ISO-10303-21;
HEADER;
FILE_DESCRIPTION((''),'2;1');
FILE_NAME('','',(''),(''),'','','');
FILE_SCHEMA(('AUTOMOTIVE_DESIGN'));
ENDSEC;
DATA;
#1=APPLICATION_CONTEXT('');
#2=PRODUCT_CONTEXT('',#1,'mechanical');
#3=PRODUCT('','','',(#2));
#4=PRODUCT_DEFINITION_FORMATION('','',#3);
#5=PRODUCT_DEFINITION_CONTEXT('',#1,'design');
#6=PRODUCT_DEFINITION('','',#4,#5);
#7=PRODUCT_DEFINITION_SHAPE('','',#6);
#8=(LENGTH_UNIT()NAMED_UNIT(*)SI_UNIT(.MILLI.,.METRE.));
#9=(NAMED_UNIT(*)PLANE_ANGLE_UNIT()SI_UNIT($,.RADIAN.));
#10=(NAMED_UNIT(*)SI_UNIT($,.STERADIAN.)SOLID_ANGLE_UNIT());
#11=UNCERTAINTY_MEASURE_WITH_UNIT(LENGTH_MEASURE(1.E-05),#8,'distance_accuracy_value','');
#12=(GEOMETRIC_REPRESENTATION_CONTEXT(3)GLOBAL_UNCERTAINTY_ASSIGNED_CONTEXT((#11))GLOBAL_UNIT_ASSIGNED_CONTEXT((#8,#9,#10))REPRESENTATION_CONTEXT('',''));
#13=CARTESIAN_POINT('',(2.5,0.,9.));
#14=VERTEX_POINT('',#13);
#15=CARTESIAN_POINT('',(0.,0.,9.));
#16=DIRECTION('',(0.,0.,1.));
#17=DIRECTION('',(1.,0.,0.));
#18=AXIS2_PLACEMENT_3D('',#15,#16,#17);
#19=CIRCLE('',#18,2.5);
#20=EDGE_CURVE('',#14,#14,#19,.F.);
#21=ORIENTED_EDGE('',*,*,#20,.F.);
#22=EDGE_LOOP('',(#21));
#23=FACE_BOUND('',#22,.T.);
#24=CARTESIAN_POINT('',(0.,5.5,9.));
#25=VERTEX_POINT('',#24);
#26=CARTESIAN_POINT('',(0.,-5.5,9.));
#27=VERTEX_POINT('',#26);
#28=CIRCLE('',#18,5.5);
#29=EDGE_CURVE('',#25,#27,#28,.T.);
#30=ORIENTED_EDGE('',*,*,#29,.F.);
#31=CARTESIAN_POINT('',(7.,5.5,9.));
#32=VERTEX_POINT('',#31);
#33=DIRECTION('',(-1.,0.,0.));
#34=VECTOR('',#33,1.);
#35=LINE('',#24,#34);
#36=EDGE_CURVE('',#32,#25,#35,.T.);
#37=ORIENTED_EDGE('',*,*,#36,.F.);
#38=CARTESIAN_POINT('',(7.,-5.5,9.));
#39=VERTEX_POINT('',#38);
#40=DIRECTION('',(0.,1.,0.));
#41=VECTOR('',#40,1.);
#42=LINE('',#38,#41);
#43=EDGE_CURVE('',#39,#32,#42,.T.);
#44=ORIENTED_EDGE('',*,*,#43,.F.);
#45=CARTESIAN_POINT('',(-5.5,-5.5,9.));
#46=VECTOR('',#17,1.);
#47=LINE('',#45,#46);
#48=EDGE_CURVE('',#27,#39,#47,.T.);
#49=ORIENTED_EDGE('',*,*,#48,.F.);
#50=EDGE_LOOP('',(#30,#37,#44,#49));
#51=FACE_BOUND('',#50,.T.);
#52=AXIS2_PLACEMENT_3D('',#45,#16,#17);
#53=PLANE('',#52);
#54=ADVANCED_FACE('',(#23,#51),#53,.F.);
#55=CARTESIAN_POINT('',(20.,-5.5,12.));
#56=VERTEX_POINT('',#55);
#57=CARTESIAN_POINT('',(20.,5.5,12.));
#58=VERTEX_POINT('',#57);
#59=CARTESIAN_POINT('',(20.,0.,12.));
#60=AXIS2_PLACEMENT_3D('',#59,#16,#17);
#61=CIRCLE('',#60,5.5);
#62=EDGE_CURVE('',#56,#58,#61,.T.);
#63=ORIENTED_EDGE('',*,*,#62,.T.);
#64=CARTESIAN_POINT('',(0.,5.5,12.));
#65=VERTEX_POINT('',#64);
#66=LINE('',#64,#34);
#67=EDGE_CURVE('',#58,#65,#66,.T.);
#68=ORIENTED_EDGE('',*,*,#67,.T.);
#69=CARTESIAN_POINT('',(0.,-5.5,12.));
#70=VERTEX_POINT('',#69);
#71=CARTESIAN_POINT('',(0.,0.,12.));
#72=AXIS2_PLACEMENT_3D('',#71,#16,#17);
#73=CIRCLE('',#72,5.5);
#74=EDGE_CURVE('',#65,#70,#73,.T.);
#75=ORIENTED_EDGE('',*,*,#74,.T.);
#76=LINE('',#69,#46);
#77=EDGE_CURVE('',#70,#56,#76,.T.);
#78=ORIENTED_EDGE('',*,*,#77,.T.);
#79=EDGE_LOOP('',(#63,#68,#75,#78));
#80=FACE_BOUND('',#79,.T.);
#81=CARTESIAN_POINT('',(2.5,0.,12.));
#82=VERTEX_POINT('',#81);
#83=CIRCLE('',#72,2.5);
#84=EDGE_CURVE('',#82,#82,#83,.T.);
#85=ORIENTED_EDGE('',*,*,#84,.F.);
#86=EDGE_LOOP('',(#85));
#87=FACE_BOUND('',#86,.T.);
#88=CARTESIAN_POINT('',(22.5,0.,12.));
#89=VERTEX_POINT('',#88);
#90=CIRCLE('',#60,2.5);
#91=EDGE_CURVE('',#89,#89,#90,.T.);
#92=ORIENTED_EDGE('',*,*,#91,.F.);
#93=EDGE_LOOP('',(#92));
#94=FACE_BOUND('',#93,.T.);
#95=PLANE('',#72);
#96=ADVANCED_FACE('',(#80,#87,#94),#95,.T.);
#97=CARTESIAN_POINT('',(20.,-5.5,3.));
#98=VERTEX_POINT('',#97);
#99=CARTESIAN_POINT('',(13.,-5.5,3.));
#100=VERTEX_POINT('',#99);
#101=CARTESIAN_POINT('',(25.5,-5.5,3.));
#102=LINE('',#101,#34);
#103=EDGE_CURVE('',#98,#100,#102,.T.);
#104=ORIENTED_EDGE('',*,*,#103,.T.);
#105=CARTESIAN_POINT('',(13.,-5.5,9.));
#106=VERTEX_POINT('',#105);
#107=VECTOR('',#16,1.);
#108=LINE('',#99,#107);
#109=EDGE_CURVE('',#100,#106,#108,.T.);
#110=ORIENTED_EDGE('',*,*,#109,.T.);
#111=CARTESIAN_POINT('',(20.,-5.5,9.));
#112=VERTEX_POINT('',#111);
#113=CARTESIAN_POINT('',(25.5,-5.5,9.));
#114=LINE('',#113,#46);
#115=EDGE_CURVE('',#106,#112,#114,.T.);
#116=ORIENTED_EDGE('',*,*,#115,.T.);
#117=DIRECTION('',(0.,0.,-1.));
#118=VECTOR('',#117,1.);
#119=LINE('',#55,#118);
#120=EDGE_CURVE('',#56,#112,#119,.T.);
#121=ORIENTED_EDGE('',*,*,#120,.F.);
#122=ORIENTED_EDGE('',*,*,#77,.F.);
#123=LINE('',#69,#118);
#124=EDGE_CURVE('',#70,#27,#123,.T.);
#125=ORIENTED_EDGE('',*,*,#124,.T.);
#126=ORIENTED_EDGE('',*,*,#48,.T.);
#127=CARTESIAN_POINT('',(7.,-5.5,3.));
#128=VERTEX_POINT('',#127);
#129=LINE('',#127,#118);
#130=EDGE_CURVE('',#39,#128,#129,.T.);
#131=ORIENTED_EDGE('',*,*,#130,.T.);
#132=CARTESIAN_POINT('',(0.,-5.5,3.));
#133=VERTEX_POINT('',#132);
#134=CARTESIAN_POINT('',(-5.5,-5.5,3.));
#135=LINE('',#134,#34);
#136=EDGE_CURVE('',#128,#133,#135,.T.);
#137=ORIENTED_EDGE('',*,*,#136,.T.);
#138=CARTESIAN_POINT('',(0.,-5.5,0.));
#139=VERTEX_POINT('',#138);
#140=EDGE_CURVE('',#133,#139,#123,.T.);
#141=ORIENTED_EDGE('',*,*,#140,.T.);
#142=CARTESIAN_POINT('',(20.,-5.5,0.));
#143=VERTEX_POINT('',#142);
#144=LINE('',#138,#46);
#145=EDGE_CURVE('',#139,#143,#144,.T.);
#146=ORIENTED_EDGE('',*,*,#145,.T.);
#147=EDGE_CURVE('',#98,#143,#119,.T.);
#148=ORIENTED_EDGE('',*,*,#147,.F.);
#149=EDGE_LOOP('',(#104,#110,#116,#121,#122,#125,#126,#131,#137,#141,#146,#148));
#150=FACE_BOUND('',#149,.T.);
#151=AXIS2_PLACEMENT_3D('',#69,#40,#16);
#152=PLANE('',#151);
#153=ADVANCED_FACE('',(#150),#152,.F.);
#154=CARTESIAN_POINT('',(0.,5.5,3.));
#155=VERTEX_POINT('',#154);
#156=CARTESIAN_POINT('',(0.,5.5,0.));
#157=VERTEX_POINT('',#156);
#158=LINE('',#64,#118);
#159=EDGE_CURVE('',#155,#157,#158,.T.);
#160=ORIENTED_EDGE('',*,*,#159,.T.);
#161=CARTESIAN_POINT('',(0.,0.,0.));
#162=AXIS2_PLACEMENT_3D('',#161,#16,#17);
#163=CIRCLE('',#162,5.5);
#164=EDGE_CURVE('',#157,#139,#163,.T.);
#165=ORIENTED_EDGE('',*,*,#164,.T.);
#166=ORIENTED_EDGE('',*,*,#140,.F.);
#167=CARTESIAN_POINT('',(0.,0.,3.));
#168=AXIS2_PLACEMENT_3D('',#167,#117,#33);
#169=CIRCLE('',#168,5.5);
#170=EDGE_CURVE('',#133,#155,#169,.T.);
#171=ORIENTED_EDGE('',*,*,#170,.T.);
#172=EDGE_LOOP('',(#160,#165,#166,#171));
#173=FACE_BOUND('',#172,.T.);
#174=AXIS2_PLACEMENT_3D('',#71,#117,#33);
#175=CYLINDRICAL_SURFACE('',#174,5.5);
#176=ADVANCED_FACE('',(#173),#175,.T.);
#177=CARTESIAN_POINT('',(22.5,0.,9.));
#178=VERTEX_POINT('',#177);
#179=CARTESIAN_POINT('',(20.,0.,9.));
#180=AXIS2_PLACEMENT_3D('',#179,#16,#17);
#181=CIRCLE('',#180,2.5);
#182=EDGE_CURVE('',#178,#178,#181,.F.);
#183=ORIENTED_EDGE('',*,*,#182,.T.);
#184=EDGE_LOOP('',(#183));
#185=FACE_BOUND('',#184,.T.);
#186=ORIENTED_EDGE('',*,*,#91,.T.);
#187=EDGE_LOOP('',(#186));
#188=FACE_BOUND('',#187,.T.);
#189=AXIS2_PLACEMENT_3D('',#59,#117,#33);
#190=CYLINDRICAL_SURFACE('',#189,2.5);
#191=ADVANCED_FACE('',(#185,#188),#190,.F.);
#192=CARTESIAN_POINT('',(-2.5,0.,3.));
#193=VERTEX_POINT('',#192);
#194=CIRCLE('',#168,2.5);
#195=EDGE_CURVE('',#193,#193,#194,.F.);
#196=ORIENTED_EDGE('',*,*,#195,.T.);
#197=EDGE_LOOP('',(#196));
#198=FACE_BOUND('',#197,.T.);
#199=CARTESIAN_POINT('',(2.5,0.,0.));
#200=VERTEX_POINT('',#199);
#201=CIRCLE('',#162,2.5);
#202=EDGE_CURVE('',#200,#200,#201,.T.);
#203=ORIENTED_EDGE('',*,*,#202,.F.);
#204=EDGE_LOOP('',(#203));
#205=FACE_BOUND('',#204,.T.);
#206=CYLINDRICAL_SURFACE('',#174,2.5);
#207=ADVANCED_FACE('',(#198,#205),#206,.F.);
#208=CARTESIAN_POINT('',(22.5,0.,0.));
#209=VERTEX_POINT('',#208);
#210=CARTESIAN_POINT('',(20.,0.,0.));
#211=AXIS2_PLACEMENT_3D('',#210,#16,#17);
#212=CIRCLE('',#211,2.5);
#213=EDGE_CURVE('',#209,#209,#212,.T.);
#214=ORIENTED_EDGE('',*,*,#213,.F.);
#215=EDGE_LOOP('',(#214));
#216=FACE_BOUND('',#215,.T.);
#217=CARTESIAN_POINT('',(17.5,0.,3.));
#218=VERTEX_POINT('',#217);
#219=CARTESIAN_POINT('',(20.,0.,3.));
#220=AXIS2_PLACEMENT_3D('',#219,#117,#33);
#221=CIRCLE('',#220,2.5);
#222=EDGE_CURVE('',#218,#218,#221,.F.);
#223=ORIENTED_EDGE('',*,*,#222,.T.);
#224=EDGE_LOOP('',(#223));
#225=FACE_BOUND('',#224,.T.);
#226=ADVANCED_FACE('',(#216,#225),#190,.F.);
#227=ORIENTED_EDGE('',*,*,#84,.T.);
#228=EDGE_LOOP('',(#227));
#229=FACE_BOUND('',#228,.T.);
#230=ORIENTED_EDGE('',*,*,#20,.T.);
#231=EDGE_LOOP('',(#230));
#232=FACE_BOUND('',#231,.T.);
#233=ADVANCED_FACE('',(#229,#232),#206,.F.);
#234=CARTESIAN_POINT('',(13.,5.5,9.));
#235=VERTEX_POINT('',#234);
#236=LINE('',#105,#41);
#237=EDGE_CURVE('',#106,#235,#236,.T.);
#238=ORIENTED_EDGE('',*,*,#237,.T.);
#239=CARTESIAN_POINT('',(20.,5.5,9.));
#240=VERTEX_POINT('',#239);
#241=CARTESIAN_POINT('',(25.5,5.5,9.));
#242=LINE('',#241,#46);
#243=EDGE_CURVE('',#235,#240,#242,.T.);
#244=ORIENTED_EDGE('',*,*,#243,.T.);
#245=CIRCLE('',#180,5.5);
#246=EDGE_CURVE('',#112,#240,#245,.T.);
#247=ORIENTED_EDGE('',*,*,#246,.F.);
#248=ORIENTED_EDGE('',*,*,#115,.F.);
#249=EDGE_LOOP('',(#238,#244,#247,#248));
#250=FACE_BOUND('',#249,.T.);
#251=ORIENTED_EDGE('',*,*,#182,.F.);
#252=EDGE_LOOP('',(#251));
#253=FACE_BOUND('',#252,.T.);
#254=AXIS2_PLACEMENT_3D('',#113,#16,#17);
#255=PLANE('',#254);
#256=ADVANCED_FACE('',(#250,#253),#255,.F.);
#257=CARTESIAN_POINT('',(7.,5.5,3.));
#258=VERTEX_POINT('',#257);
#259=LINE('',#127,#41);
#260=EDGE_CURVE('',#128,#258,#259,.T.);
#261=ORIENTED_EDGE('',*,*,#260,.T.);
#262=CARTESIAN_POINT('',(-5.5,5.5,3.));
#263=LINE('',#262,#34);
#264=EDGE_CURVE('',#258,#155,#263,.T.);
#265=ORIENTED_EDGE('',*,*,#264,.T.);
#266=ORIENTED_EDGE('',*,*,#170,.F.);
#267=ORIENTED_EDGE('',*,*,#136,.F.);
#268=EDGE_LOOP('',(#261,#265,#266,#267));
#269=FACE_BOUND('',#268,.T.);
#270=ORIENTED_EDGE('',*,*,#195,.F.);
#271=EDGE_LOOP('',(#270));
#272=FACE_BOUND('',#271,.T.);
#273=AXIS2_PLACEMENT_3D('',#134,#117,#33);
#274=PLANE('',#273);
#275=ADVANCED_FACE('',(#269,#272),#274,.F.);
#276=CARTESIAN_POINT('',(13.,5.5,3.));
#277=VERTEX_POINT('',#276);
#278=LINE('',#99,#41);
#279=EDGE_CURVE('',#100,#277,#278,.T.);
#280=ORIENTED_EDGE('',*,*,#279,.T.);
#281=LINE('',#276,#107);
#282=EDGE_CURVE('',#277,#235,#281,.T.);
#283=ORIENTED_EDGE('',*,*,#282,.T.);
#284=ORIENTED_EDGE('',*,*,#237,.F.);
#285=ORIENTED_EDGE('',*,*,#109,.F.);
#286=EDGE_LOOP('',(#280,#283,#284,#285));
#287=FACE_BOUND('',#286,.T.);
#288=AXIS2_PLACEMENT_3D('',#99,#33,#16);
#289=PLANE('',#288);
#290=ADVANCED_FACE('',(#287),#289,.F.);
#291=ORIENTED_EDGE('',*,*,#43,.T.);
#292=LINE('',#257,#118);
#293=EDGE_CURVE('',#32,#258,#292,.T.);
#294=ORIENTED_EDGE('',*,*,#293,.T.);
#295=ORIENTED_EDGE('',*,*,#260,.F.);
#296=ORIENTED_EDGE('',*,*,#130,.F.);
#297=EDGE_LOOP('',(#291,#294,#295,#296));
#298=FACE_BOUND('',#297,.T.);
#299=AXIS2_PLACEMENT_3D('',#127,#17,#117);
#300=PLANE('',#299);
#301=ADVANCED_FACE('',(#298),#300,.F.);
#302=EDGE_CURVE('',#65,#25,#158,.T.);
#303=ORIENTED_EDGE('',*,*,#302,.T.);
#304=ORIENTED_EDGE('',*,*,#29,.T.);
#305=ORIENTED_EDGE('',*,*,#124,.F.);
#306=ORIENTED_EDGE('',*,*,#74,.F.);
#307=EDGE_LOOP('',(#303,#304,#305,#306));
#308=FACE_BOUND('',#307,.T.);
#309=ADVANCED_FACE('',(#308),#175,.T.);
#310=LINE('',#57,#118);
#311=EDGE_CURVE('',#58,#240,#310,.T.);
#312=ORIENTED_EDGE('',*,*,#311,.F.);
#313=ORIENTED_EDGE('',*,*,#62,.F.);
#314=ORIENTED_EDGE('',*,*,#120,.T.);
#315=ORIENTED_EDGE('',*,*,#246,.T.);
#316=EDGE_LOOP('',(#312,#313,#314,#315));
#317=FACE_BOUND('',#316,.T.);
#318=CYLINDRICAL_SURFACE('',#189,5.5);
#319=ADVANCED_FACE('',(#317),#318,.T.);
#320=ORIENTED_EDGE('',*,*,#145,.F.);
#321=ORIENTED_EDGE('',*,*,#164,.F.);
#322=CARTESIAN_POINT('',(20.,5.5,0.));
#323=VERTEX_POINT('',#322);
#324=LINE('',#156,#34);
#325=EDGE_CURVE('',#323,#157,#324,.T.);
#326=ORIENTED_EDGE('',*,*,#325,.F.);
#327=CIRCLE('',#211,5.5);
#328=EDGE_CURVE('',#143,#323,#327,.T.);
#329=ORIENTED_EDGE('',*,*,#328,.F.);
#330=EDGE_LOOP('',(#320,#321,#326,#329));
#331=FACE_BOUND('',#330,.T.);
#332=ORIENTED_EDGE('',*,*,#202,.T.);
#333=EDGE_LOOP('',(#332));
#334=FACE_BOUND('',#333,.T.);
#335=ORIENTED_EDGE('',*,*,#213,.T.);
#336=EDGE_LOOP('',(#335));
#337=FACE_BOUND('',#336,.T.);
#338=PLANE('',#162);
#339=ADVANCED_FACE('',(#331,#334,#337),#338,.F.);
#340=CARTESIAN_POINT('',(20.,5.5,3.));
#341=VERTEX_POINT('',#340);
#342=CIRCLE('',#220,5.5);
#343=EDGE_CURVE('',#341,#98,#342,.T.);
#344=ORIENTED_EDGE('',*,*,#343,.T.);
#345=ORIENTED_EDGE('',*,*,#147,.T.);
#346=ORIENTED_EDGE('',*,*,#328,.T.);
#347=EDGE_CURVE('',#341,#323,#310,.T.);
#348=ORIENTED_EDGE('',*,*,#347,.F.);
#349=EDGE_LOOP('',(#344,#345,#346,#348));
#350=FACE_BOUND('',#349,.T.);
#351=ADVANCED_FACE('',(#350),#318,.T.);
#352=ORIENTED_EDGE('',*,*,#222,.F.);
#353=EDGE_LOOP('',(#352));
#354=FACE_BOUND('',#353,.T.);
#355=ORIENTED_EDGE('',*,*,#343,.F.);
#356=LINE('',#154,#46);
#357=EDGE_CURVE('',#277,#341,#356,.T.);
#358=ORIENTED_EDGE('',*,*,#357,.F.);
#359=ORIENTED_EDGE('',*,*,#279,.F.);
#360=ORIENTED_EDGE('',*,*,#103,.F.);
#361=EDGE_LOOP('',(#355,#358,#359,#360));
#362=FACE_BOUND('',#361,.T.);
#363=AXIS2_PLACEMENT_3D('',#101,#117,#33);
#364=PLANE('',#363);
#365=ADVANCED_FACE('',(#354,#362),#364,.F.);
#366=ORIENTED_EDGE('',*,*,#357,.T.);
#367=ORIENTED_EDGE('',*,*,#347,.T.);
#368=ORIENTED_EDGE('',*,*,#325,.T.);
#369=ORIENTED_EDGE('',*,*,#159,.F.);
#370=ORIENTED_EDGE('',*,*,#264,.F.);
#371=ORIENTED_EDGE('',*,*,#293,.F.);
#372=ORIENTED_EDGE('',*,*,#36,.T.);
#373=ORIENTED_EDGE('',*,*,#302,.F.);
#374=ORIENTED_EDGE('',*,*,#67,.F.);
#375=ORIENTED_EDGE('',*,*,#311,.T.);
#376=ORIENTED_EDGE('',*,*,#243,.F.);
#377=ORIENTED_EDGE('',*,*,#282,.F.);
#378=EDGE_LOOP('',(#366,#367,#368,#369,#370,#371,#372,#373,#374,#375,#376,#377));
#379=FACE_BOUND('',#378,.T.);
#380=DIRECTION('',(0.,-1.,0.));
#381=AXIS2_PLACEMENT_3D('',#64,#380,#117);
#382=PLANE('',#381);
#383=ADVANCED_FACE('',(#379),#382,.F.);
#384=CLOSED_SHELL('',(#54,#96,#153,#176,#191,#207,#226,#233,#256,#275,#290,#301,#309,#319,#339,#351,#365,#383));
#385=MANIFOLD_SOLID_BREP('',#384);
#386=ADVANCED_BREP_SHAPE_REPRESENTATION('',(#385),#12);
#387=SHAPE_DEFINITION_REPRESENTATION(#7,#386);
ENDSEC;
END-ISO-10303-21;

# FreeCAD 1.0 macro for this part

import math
import FreeCAD as App
import Part
import Sketcher
from FreeCAD import Vector

doc = App.newDocument("Part")
body = doc.addObject("PartDesign::Body", "Body")

# Sketch on XY plane
sketch1 = body.newObject("Sketcher::SketchObject", "Sketch")
sketch1.AttachmentSupport = (doc.getObject("XY_Plane"), [""])
sketch1.MapMode = "FlatFace"
sketch1.addGeometry([
    Part.LineSegment(Vector(20, 5.5, 0), Vector(0, 5.5, 0)),
    Part.ArcOfCircle(Part.Circle(Vector(0, 0, 0), Vector(0, 0, 1), 5.5), math.radians(90), math.radians(270)),
    Part.LineSegment(Vector(0, -5.5, 0), Vector(20, -5.5, 0)),
    Part.ArcOfCircle(Part.Circle(Vector(20, 0, 0), Vector(0, 0, 1), 5.5), math.radians(-90), math.radians(90)),
], False)
sketch1.addConstraint([
    Sketcher.Constraint("Tangent", 0, 2, 1, 1),
    Sketcher.Constraint("Tangent", 1, 2, 2, 1),
    Sketcher.Constraint("Tangent", 2, 2, 3, 1),
    Sketcher.Constraint("Tangent", 3, 2, 0, 1),
    Sketcher.Constraint("Horizontal", 0),
    Sketcher.Constraint("Horizontal", 2),
    Sketcher.Constraint("Coincident", 1, 3, -1, 1),
    Sketcher.Constraint("Radius", 1, 5.5),
    Sketcher.Constraint("DistanceX", 0, 2, 0, 1, 20.0),
])
pad1 = body.newObject("PartDesign::Pad", "Pad")
pad1.Profile = sketch1
pad1.Length = 12

# Sketch on XZ plane
sketch2 = body.newObject("Sketcher::SketchObject", "Sketch001")
sketch2.AttachmentSupport = (doc.getObject("XZ_Plane"), [""])
sketch2.MapMode = "FlatFace"
sketch2.AttachmentOffset = App.Placement(Vector(0, 0, -5.5), App.Rotation())
sketch2.addGeometry([
    Part.LineSegment(Vector(-5.5, 3, 0), Vector(-5.5, 9, 0)),  # 0
    Part.LineSegment(Vector(-5.5, 9, 0), Vector(7, 9, 0)),  # 1
    Part.LineSegment(Vector(7, 9, 0), Vector(7, 3, 0)),  # 2
    Part.LineSegment(Vector(7, 3, 0), Vector(-5.5, 3, 0)),  # 3
    Part.LineSegment(Vector(13, 3, 0), Vector(13, 9, 0)),  # 4
    Part.LineSegment(Vector(13, 9, 0), Vector(25.5, 9, 0)),  # 5
    Part.LineSegment(Vector(25.5, 9, 0), Vector(25.5, 3, 0)),  # 6
    Part.LineSegment(Vector(25.5, 3, 0), Vector(13, 3, 0)),  # 7
], False)
sketch2.addConstraint([
    Sketcher.Constraint("Coincident", 0, 2, 1, 1),
    Sketcher.Constraint("Coincident", 1, 2, 2, 1),
    Sketcher.Constraint("Coincident", 2, 2, 3, 1),
    Sketcher.Constraint("Coincident", 3, 2, 0, 1),
    Sketcher.Constraint("Coincident", 4, 2, 5, 1),
    Sketcher.Constraint("Coincident", 5, 2, 6, 1),
    Sketcher.Constraint("Coincident", 6, 2, 7, 1),
    Sketcher.Constraint("Coincident", 7, 2, 4, 1),
    Sketcher.Constraint("Vertical", 0),
    Sketcher.Constraint("Horizontal", 1),
    Sketcher.Constraint("Vertical", 2),
    Sketcher.Constraint("Horizontal", 3),
    Sketcher.Constraint("Vertical", 4),
    Sketcher.Constraint("Horizontal", 5),
    Sketcher.Constraint("Vertical", 6),
    Sketcher.Constraint("Horizontal", 7),
    Sketcher.Constraint("Horizontal", 1, 2, 4, 2),
    Sketcher.Constraint("Horizontal", 3, 2, 6, 2),
    Sketcher.Constraint("Equal", 3, 5),
    Sketcher.Constraint("DistanceY", 0, 1, 0, 2, 6.0),
    Sketcher.Constraint("DistanceX", 1, 1, 1, 2, 12.5),
    Sketcher.Constraint("DistanceY", -1, 1, 0, 2, 9.0),
    Sketcher.Constraint("DistanceX", -1, 1, 1, 2, 7.0),
    Sketcher.Constraint("DistanceX", -1, 1, 4, 2, 13.0),
])
pocket1 = body.newObject("PartDesign::Pocket", "Pocket")
pocket1.Profile = sketch2
pocket1.Type = "ThroughAll"
pocket1.Reversed = True

# Sketch on XY plane
sketch3 = body.newObject("Sketcher::SketchObject", "Sketch002")
sketch3.AttachmentSupport = (doc.getObject("XY_Plane"), [""])
sketch3.MapMode = "FlatFace"
sketch3.addGeometry([
    Part.Circle(Vector(0, 0, 0), Vector(0, 0, 1), 2.5),
    Part.Circle(Vector(20, 0, 0), Vector(0, 0, 1), 2.5),
], False)
sketch3.addConstraint([
    Sketcher.Constraint("Coincident", 0, 3, -1, 1),
    Sketcher.Constraint("Equal", 0, 1),
    Sketcher.Constraint("PointOnObject", 1, 3, -1),
    Sketcher.Constraint("Diameter", 0, 5.0),
    Sketcher.Constraint("DistanceX", -1, 1, 1, 3, 20.0),
])
pocket2 = body.newObject("PartDesign::Pocket", "Pocket001")
pocket2.Profile = sketch3
pocket2.Type = "ThroughAll"
pocket2.Reversed = True

doc.recompute()
